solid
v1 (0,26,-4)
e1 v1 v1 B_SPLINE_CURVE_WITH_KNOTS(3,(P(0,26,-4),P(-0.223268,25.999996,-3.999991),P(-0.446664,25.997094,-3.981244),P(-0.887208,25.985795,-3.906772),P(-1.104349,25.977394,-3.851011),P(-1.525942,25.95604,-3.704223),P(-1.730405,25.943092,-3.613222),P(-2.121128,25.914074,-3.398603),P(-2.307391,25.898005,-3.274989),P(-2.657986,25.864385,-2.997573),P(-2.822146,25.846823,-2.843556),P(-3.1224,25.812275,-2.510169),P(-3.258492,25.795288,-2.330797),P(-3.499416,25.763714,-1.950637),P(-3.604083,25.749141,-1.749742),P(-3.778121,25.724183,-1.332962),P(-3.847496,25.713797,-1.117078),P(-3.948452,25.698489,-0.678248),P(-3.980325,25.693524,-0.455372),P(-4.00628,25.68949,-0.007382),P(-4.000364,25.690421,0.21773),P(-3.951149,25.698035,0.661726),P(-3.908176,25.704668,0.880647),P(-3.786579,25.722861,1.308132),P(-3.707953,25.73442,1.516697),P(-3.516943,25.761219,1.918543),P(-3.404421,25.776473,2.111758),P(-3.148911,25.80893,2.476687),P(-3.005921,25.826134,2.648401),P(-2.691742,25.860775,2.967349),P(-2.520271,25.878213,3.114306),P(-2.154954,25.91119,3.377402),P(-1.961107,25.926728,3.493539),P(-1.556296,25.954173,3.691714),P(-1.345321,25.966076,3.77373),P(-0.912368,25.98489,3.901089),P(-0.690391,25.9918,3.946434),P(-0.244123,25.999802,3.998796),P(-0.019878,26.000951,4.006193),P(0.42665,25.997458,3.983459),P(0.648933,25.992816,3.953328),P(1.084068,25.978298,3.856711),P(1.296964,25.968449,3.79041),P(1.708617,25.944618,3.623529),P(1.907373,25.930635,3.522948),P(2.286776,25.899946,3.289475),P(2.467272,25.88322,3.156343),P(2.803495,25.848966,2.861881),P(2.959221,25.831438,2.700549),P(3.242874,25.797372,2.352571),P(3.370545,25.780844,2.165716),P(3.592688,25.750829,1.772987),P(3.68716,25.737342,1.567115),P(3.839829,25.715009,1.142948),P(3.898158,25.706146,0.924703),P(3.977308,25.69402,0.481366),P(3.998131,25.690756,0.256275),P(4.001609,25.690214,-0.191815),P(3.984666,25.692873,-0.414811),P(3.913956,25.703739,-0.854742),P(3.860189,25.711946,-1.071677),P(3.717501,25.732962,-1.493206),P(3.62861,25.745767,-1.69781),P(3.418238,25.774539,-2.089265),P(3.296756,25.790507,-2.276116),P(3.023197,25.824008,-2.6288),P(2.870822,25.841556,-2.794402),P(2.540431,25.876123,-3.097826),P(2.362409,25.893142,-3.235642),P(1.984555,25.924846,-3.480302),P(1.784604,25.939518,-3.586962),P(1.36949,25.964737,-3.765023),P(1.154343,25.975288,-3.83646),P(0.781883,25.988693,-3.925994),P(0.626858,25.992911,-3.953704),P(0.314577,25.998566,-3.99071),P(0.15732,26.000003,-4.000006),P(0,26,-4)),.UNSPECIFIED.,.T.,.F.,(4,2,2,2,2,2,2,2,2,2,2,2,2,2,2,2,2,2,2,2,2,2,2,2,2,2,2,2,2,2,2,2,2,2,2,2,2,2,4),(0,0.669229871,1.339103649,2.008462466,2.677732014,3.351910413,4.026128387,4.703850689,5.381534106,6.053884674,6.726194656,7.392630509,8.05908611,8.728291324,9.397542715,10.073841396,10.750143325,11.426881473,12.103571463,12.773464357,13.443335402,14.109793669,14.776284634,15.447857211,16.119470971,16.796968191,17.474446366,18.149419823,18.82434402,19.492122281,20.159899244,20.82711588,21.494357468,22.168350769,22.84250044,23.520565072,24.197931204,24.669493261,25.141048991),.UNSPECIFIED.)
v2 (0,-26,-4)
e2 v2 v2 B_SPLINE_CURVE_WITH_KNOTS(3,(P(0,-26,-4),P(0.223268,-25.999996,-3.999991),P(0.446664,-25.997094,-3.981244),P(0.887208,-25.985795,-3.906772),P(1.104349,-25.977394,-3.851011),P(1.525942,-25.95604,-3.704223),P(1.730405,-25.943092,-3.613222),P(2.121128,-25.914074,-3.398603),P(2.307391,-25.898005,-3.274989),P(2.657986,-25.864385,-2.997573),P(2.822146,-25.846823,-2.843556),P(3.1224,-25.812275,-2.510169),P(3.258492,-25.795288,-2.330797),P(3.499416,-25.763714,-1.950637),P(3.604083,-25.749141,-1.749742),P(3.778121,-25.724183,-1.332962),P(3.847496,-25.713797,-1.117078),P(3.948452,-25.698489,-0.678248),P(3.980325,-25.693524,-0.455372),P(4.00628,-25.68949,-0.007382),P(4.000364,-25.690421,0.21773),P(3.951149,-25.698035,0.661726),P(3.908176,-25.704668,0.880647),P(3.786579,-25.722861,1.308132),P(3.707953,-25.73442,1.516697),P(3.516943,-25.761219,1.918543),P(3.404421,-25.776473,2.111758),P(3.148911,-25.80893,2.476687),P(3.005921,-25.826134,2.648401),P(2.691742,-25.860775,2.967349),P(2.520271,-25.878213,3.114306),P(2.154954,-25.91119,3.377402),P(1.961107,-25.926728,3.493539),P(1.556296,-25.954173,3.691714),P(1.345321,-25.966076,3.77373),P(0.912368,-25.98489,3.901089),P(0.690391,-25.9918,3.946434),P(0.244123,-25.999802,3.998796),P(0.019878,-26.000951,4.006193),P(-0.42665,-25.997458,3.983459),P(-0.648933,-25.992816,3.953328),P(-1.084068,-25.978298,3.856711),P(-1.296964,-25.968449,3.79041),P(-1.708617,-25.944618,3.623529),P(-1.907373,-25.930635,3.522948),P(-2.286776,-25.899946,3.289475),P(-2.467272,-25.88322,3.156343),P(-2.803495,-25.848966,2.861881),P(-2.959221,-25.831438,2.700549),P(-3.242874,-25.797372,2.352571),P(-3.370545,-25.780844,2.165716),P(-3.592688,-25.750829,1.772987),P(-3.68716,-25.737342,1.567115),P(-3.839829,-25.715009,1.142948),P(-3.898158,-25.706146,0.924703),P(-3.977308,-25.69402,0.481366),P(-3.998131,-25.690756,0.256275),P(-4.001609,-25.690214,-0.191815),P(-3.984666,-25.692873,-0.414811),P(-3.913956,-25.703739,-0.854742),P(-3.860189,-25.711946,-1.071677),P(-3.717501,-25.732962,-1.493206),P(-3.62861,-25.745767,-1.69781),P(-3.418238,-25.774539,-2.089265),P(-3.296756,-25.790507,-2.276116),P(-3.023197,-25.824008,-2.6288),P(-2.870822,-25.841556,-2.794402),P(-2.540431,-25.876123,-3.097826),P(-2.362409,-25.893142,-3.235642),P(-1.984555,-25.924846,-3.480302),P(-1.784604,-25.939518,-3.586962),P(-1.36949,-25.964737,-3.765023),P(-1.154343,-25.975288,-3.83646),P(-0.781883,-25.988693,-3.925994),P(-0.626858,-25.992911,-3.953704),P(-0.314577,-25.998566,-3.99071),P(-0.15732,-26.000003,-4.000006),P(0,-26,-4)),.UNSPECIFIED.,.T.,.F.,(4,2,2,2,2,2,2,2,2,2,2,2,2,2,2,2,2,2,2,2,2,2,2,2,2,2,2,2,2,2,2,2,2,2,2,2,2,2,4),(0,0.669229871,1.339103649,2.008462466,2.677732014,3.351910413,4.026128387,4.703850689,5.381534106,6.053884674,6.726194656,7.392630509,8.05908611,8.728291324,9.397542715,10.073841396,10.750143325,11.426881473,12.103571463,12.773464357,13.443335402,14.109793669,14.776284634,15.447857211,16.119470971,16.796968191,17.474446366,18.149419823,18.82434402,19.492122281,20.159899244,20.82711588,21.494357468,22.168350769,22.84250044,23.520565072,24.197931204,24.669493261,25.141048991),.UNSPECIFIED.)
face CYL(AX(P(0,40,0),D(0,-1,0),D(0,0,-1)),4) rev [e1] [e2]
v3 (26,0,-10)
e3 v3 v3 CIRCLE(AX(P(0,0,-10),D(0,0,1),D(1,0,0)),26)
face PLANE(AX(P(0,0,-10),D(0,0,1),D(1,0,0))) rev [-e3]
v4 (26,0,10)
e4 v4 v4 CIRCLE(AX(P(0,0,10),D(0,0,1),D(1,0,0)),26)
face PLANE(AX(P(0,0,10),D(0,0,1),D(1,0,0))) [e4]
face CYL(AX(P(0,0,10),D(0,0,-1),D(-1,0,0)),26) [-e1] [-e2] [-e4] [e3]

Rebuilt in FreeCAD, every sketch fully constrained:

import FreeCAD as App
import Part
import Sketcher
Q = App.Units.Quantity

doc = App.newDocument("Part")
body = doc.addObject("PartDesign::Body", "Body")

# Sketch on XY plane
sketch1 = body.newObject("Sketcher::SketchObject", "Sketch")
sketch1.AttachmentSupport = (doc.getObject("XY_Plane"), [""])
sketch1.MapMode = "FlatFace"
sketch1.addGeometry(Part.Circle(App.Vector(0, 0, 0), App.Vector(0, 0, 1), 26), False)
sketch1.addConstraint(Sketcher.Constraint("Coincident", 0, 3, -1, 1))
sketch1.addConstraint(Sketcher.Constraint("Diameter", 0, Q("52 mm")))
pad1 = body.newObject("PartDesign::Pad", "Pad")
pad1.Profile = sketch1
pad1.Length = 20
pad1.Midplane = True

# Sketch on XZ plane
sketch2 = body.newObject("Sketcher::SketchObject", "Sketch001")
sketch2.AttachmentSupport = (doc.getObject("XZ_Plane"), [""])
sketch2.MapMode = "FlatFace"
sketch2.addGeometry(Part.Circle(App.Vector(0, 0, 0), App.Vector(0, 0, 1), 4), False)
sketch2.addConstraint(Sketcher.Constraint("Coincident", 0, 3, -1, 1))
sketch2.addConstraint(Sketcher.Constraint("Diameter", 0, Q("8 mm")))
pocket1 = body.newObject("PartDesign::Pocket", "Pocket")
pocket1.Profile = sketch2
pocket1.Length = 80
pocket1.Midplane = True

doc.recompute()
